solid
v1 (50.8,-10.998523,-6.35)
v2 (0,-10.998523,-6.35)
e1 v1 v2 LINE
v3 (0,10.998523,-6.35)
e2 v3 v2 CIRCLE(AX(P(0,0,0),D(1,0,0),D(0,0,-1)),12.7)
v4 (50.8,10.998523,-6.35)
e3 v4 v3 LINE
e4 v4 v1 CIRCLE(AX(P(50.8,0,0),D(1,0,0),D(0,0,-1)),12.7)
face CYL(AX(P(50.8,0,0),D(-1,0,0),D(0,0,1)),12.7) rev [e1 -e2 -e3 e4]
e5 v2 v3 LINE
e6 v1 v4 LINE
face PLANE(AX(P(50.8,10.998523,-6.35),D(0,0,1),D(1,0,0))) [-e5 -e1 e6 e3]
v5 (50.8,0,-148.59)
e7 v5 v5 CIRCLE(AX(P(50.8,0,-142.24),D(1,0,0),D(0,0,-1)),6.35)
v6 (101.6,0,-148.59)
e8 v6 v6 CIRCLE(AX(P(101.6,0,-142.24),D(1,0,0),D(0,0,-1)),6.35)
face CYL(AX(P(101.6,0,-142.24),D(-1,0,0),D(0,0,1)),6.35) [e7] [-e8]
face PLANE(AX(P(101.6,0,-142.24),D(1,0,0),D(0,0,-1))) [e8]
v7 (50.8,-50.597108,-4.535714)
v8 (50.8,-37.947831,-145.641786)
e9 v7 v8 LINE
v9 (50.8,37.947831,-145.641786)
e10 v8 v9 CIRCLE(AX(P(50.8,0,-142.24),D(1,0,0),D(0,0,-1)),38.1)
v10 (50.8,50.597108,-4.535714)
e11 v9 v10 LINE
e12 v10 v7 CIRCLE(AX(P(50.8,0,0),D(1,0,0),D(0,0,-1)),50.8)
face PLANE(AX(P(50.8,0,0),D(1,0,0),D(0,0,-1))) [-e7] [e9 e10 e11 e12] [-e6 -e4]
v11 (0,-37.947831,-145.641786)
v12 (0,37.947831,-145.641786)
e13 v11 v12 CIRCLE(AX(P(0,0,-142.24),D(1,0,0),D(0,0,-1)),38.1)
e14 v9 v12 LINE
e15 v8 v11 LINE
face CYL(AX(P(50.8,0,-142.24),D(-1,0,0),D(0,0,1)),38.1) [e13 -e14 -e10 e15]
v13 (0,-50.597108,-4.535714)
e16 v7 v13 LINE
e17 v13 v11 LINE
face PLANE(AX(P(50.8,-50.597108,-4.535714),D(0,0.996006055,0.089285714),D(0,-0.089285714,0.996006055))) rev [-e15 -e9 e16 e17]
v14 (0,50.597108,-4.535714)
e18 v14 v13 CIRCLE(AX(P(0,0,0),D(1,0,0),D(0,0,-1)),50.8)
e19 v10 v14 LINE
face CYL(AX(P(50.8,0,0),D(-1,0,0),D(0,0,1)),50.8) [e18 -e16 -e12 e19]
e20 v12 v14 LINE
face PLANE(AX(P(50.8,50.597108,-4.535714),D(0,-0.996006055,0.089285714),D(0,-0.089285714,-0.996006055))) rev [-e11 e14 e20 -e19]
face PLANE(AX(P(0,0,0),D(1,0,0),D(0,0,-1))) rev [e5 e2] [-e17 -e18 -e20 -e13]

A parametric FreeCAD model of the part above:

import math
import FreeCAD as App
import Part
import Sketcher

V = App.Vector
Q = App.Units.Quantity

doc = App.newDocument("Part")
body = doc.addObject("PartDesign::Body", "Body")

sketch1 = doc.addObject("Sketcher::SketchObject", "Sketch")
body.addObject(sketch1)
sketch1.AttachmentSupport = (doc.YZ_Plane, [""])
sketch1.MapMode = "FlatFace"
sketch1.addGeometry(Part.LineSegment(V(38, -146, 0), V(51, -5, 0)), False)
sketch1.addGeometry(Part.ArcOfCircle(Part.Circle(V(0, 0, 0), V(0, 0, 1), 51), math.radians(-5), math.radians(185)), False)
sketch1.addGeometry(Part.LineSegment(V(-51, -5, 0), V(-38, -146, 0)), False)
sketch1.addGeometry(Part.ArcOfCircle(Part.Circle(V(0, -142, 0), V(0, 0, 1), 38), math.radians(-175), math.radians(-5)), False)
sketch1.addGeometry(Part.LineSegment(V(11, -6, 0), V(-11, -6, 0)), False)
sketch1.addGeometry(Part.ArcOfCircle(Part.Circle(V(0, 0, 0), V(0, 0, 1), 13), math.radians(-30), math.radians(210)), False)
sketch1.addConstraint(Sketcher.Constraint("Tangent", 0, 2, 1, 1))
sketch1.addConstraint(Sketcher.Constraint("Tangent", 1, 2, 2, 1))
sketch1.addConstraint(Sketcher.Constraint("Tangent", 2, 2, 3, 1))
sketch1.addConstraint(Sketcher.Constraint("Tangent", 3, 2, 0, 1))
sketch1.addConstraint(Sketcher.Constraint("Coincident", 4, 1, 5, 1))
sketch1.addConstraint(Sketcher.Constraint("Coincident", 5, 2, 4, 2))
sketch1.addConstraint(Sketcher.Constraint("Horizontal", 4))
sketch1.addConstraint(Sketcher.Constraint("Coincident", 1, 3, -1, 1))
sketch1.addConstraint(Sketcher.Constraint("Coincident", 5, 3, -1, 1))
sketch1.addConstraint(Sketcher.Constraint("PointOnObject", 3, 3, -2))
sketch1.addConstraint(Sketcher.Constraint("Radius", 1, Q("2 in")))
sketch1.addConstraint(Sketcher.Constraint("Radius", 3, Q("1.5 in")))
sketch1.addConstraint(Sketcher.Constraint("Radius", 5, Q("0.5 in")))
sketch1.addConstraint(Sketcher.Constraint("DistanceY", 3, 3, -1, 1, Q("5.6 in")))
sketch1.addConstraint(Sketcher.Constraint("DistanceY", 4, 1, -1, 1, Q("0.25 in")))
pad1 = doc.addObject("PartDesign::Pad", "Pad")
body.addObject(pad1)
pad1.Profile = sketch1
pad1.Length = Q("2 in")

sketch2 = doc.addObject("Sketcher::SketchObject", "Sketch001")
body.addObject(sketch2)
sketch2.AttachmentSupport = (doc.YZ_Plane, [""])
sketch2.MapMode = "FlatFace"
sketch2.AttachmentOffset = App.Placement(V(0, 0, 2 * 25.4), App.Rotation())
sketch2.addGeometry(Part.Circle(V(0, -142, 0), V(0, 0, 1), 6), False)
sketch2.addConstraint(Sketcher.Constraint("PointOnObject", 0, 3, -2))
sketch2.addConstraint(Sketcher.Constraint("Diameter", 0, Q("0.5 in")))
sketch2.addConstraint(Sketcher.Constraint("DistanceY", 0, 3, -1, 1, Q("5.6 in")))
pad2 = doc.addObject("PartDesign::Pad", "Pad001")
body.addObject(pad2)
pad2.Profile = sketch2
pad2.Length = Q("2 in")

doc.recompute()
